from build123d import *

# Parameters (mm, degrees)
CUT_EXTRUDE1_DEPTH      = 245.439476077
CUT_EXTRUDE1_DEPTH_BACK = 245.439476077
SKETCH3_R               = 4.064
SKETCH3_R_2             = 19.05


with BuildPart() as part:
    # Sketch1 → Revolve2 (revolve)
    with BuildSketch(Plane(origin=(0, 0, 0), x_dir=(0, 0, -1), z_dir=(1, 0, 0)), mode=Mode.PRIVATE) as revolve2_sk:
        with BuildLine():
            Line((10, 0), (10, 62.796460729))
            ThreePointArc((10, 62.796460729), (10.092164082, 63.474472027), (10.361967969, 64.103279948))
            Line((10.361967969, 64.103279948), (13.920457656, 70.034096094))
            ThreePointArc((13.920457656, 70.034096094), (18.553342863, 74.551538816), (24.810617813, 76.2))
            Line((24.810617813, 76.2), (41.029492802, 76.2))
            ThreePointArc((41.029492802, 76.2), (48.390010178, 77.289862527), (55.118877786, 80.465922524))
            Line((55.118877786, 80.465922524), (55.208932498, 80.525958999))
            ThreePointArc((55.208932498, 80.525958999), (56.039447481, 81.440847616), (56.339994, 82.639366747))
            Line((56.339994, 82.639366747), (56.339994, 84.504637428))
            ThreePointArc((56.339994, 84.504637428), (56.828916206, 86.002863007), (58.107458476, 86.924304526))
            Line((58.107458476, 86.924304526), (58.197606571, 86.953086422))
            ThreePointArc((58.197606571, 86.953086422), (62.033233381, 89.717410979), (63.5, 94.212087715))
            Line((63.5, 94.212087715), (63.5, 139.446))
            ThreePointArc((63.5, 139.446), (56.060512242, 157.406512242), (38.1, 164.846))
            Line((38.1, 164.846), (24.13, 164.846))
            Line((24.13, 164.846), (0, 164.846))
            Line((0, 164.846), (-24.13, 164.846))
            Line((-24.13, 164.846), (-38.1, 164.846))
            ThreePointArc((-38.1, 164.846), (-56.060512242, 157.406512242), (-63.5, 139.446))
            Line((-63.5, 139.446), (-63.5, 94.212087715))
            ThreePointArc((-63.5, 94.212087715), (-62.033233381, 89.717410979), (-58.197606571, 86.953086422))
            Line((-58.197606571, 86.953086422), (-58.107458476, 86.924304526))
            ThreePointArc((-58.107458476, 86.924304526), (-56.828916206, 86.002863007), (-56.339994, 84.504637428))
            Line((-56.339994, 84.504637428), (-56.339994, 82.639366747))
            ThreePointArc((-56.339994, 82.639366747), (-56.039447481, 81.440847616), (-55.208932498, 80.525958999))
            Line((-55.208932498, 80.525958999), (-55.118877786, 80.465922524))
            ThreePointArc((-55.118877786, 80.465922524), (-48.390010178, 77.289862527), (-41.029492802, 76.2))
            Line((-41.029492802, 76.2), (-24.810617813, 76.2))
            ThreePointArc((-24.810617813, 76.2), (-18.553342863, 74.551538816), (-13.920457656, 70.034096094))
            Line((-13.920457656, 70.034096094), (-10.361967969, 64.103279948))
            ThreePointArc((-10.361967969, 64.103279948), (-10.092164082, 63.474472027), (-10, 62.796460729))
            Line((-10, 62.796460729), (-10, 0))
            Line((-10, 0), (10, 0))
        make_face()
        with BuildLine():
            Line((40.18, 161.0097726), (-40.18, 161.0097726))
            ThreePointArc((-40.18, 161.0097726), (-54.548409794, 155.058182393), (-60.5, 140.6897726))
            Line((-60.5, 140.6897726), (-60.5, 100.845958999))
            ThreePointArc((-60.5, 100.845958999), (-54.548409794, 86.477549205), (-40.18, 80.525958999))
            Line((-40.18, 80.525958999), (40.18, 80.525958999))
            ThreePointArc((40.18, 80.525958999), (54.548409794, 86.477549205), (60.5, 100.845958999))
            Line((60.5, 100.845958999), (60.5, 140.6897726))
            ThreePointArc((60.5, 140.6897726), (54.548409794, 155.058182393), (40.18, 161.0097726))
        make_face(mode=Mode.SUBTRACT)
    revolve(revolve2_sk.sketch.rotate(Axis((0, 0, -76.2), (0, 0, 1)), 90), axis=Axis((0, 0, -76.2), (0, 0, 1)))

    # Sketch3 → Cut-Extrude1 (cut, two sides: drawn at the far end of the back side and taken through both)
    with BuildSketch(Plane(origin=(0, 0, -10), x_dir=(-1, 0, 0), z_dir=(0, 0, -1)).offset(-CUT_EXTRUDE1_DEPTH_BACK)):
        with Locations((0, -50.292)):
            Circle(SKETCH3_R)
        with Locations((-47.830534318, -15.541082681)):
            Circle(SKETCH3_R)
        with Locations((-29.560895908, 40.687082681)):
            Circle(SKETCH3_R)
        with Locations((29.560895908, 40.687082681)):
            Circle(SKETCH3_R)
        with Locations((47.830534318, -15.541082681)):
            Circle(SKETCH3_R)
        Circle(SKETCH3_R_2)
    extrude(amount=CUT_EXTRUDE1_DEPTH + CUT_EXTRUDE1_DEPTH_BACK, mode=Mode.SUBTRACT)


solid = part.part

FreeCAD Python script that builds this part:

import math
import FreeCAD as App
import Part
import Sketcher

V = App.Vector
Q = App.Units.Quantity

doc = App.newDocument("Part")
params = doc.addObject("Spreadsheet::Sheet", "Params")
for row, (alias, value) in enumerate([
    ("sketch1_radius", "1 in"),
    ("sketch1_radius2", "0.1 in"),
    ("sketch1_radius3", "0.5 in"),
    ("sketch1_radius4", "0.3 in"),
    ("sketch1_radius5", "0.8 in"),
    ("revolution_angle", "360 deg"),
    ("sketch2_diameter", "1.5 in"),
    ("sketch2_diameter2", "0.32 in"),
], start=1):
    params.set(f"A{row}", alias)
    params.set(f"B{row}", "=" + value)
    params.setAlias(f"B{row}", alias)

body = doc.addObject("PartDesign::Body", "Body")

sketch1 = body.newObject("Sketcher::SketchObject", "Sketch")
sketch1.AttachmentSupport = (doc.getObject("YZ_Plane"), [""])
sketch1.MapMode = "FlatFace"
sketch1.addGeometry(Part.LineSegment(V(0, -10, 0), V(62.8, -10, 0)), False)
sketch1.addGeometry(Part.ArcOfCircle(Part.Circle(V(62.8, -12.54, 0), V(0, 0, 1), 2.54), math.radians(59), math.radians(90)), False)
sketch1.addGeometry(Part.LineSegment(V(64.1, -10.36, 0), V(70.03, -13.92, 0)), False)
sketch1.addGeometry(Part.ArcOfCircle(Part.Circle(V(63.5, -24.81, 0), V(0, 0, 1), 12.7), math.radians(0), math.radians(59)), False)
sketch1.addGeometry(Part.LineSegment(V(76.2, -24.81, 0), V(76.2, -41.03, 0)), False)
sketch1.addGeometry(Part.ArcOfCircle(Part.Circle(V(101.6, -41.03, 0), V(0, 0, 1), 25.4), math.radians(180), math.radians(214)), False)
sketch1.addGeometry(Part.LineSegment(V(80.47, -55.12, 0), V(80.53, -55.21, 0)), False)
sketch1.addGeometry(Part.ArcOfCircle(Part.Circle(V(82.64, -53.8, 0), V(0, 0, 1), 2.54), math.radians(-146), math.radians(-90)), False)
sketch1.addGeometry(Part.LineSegment(V(82.64, -56.34, 0), V(84.5, -56.34, 0)), False)
sketch1.addGeometry(Part.ArcOfCircle(Part.Circle(V(84.5, -58.88, 0), V(0, 0, 1), 2.54), math.radians(18), math.radians(90)), False)
sketch1.addGeometry(Part.LineSegment(V(86.92, -58.11, 0), V(86.95, -58.2, 0)), False)
sketch1.addGeometry(Part.ArcOfCircle(Part.Circle(V(94.21, -55.88, 0), V(0, 0, 1), 7.62), math.radians(-162), math.radians(-90)), False)
sketch1.addGeometry(Part.LineSegment(V(94.21, -63.5, 0), V(139.45, -63.5, 0)), False)
sketch1.addGeometry(Part.ArcOfCircle(Part.Circle(V(139.45, -38.1, 0), V(0, 0, 1), 25.4), math.radians(-90), math.radians(0)), False)
sketch1.addGeometry(Part.LineSegment(V(164.85, -38.1, 0), V(164.85, 38.1, 0)), False)
sketch1.addGeometry(Part.ArcOfCircle(Part.Circle(V(139.45, 38.1, 0), V(0, 0, 1), 25.4), math.radians(0), math.radians(90)), False)
sketch1.addGeometry(Part.LineSegment(V(139.45, 63.5, 0), V(94.21, 63.5, 0)), False)
sketch1.addGeometry(Part.ArcOfCircle(Part.Circle(V(94.21, 55.88, 0), V(0, 0, 1), 7.62), math.radians(90), math.radians(162)), False)
sketch1.addGeometry(Part.LineSegment(V(86.95, 58.2, 0), V(86.92, 58.11, 0)), False)
sketch1.addGeometry(Part.ArcOfCircle(Part.Circle(V(84.5, 58.88, 0), V(0, 0, 1), 2.54), math.radians(-90), math.radians(-18)), False)
sketch1.addGeometry(Part.LineSegment(V(84.5, 56.34, 0), V(82.64, 56.34, 0)), False)
sketch1.addGeometry(Part.ArcOfCircle(Part.Circle(V(82.64, 53.8, 0), V(0, 0, 1), 2.54), math.radians(90), math.radians(146)), False)
sketch1.addGeometry(Part.LineSegment(V(80.53, 55.21, 0), V(80.47, 55.12, 0)), False)
sketch1.addGeometry(Part.ArcOfCircle(Part.Circle(V(101.6, 41.03, 0), V(0, 0, 1), 25.4), math.radians(146), math.radians(180)), False)
sketch1.addGeometry(Part.LineSegment(V(76.2, 41.03, 0), V(76.2, 24.81, 0)), False)
sketch1.addGeometry(Part.ArcOfCircle(Part.Circle(V(63.5, 24.81, 0), V(0, 0, 1), 12.7), math.radians(-59), math.radians(0)), False)
sketch1.addGeometry(Part.LineSegment(V(70.03, 13.92, 0), V(64.1, 10.36, 0)), False)
sketch1.addGeometry(Part.ArcOfCircle(Part.Circle(V(62.8, 12.54, 0), V(0, 0, 1), 2.54), math.radians(-90), math.radians(-59)), False)
sketch1.addGeometry(Part.LineSegment(V(62.8, 10, 0), V(0, 10, 0)), False)
sketch1.addGeometry(Part.LineSegment(V(0, 10, 0), V(0, -10, 0)), False)
sketch1.addGeometry(Part.LineSegment(V(161.01, 40.18, 0), V(161.01, -40.18, 0)), False)
sketch1.addGeometry(Part.ArcOfCircle(Part.Circle(V(140.69, -40.18, 0), V(0, 0, 1), 20.32), math.radians(-90), math.radians(0)), False)
sketch1.addGeometry(Part.LineSegment(V(140.69, -60.5, 0), V(100.85, -60.5, 0)), False)
sketch1.addGeometry(Part.ArcOfCircle(Part.Circle(V(100.85, -40.18, 0), V(0, 0, 1), 20.32), math.radians(180), math.radians(270)), False)
sketch1.addGeometry(Part.LineSegment(V(80.53, -40.18, 0), V(80.53, 40.18, 0)), False)
sketch1.addGeometry(Part.ArcOfCircle(Part.Circle(V(100.85, 40.18, 0), V(0, 0, 1), 20.32), math.radians(90), math.radians(180)), False)
sketch1.addGeometry(Part.LineSegment(V(100.85, 60.5, 0), V(140.69, 60.5, 0)), False)
sketch1.addGeometry(Part.ArcOfCircle(Part.Circle(V(140.69, 40.18, 0), V(0, 0, 1), 20.32), math.radians(0), math.radians(90)), False)
sketch1.addConstraint(Sketcher.Constraint("Tangent", 0, 2, 1, 2))
sketch1.addConstraint(Sketcher.Constraint("Tangent", 1, 1, 2, 1))
sketch1.addConstraint(Sketcher.Constraint("Tangent", 2, 2, 3, 2))
sketch1.addConstraint(Sketcher.Constraint("Tangent", 3, 1, 4, 1))
sketch1.addConstraint(Sketcher.Constraint("Tangent", 4, 2, 5, 1))
sketch1.addConstraint(Sketcher.Constraint("Tangent", 5, 2, 6, 1))
sketch1.addConstraint(Sketcher.Constraint("Tangent", 6, 2, 7, 1))
sketch1.addConstraint(Sketcher.Constraint("Tangent", 7, 2, 8, 1))
sketch1.addConstraint(Sketcher.Constraint("Tangent", 8, 2, 9, 2))
sketch1.addConstraint(Sketcher.Constraint("Tangent", 9, 1, 10, 1))
sketch1.addConstraint(Sketcher.Constraint("Tangent", 10, 2, 11, 1))
sketch1.addConstraint(Sketcher.Constraint("Tangent", 11, 2, 12, 1))
sketch1.addConstraint(Sketcher.Constraint("Tangent", 12, 2, 13, 1))
sketch1.addConstraint(Sketcher.Constraint("Tangent", 13, 2, 14, 1))
sketch1.addConstraint(Sketcher.Constraint("Tangent", 14, 2, 15, 1))
sketch1.addConstraint(Sketcher.Constraint("Tangent", 15, 2, 16, 1))
sketch1.addConstraint(Sketcher.Constraint("Tangent", 16, 2, 17, 1))
sketch1.addConstraint(Sketcher.Constraint("Tangent", 17, 2, 18, 1))
sketch1.addConstraint(Sketcher.Constraint("Tangent", 18, 2, 19, 2))
sketch1.addConstraint(Sketcher.Constraint("Tangent", 19, 1, 20, 1))
sketch1.addConstraint(Sketcher.Constraint("Tangent", 20, 2, 21, 1))
sketch1.addConstraint(Sketcher.Constraint("Tangent", 21, 2, 22, 1))
sketch1.addConstraint(Sketcher.Constraint("Tangent", 22, 2, 23, 1))
sketch1.addConstraint(Sketcher.Constraint("Tangent", 23, 2, 24, 1))
sketch1.addConstraint(Sketcher.Constraint("Tangent", 24, 2, 25, 2))
sketch1.addConstraint(Sketcher.Constraint("Tangent", 25, 1, 26, 1))
sketch1.addConstraint(Sketcher.Constraint("Tangent", 26, 2, 27, 2))
sketch1.addConstraint(Sketcher.Constraint("Tangent", 27, 1, 28, 1))
sketch1.addConstraint(Sketcher.Constraint("Coincident", 28, 2, 29, 1))
sketch1.addConstraint(Sketcher.Constraint("Coincident", 29, 2, 0, 1))
sketch1.addConstraint(Sketcher.Constraint("Tangent", 30, 2, 31, 2))
sketch1.addConstraint(Sketcher.Constraint("Tangent", 31, 1, 32, 1))
sketch1.addConstraint(Sketcher.Constraint("Tangent", 32, 2, 33, 2))
sketch1.addConstraint(Sketcher.Constraint("Tangent", 33, 1, 34, 1))
sketch1.addConstraint(Sketcher.Constraint("Tangent", 34, 2, 35, 2))
sketch1.addConstraint(Sketcher.Constraint("Tangent", 35, 1, 36, 1))
sketch1.addConstraint(Sketcher.Constraint("Tangent", 36, 2, 37, 2))
sketch1.addConstraint(Sketcher.Constraint("Tangent", 37, 1, 30, 1))
sketch1.addConstraint(Sketcher.Constraint("Horizontal", 0))
sketch1.addConstraint(Sketcher.Constraint("Vertical", 4))
sketch1.addConstraint(Sketcher.Constraint("Horizontal", 8))
sketch1.addConstraint(Sketcher.Constraint("Horizontal", 12))
sketch1.addConstraint(Sketcher.Constraint("Vertical", 14))
sketch1.addConstraint(Sketcher.Constraint("Horizontal", 16))
sketch1.addConstraint(Sketcher.Constraint("Horizontal", 20))
sketch1.addConstraint(Sketcher.Constraint("Vertical", 24))
sketch1.addConstraint(Sketcher.Constraint("Horizontal", 28))
sketch1.addConstraint(Sketcher.Constraint("Vertical", 29))
sketch1.addConstraint(Sketcher.Constraint("Vertical", 30))
sketch1.addConstraint(Sketcher.Constraint("Horizontal", 32))
sketch1.addConstraint(Sketcher.Constraint("Vertical", 34))
sketch1.addConstraint(Sketcher.Constraint("Horizontal", 36))
sketch1.addConstraint(Sketcher.Constraint("Equal", 1, 7))
sketch1.addConstraint(Sketcher.Constraint("Equal", 7, 9))
sketch1.addConstraint(Sketcher.Constraint("Equal", 5, 13))
sketch1.addConstraint(Sketcher.Constraint("Equal", 13, 15))
sketch1.addConstraint(Sketcher.Constraint("Equal", 11, 17))
sketch1.addConstraint(Sketcher.Constraint("Equal", 9, 19))
sketch1.addConstraint(Sketcher.Constraint("Equal", 19, 21))
sketch1.addConstraint(Sketcher.Constraint("Equal", 15, 23))
sketch1.addConstraint(Sketcher.Constraint("Equal", 3, 25))
sketch1.addConstraint(Sketcher.Constraint("Equal", 21, 27))
sketch1.addConstraint(Sketcher.Constraint("Equal", 31, 33))
sketch1.addConstraint(Sketcher.Constraint("Equal", 33, 35))
sketch1.addConstraint(Sketcher.Constraint("Equal", 35, 37))
sketch1.addConstraint(Sketcher.Constraint("Symmetric", 28, 2, 29, 2, -1, 1))
sketch1.addConstraint(Sketcher.Constraint("Symmetric", 11, 3, 17, 3, -1))
sketch1.addConstraint(Sketcher.Constraint("Symmetric", 9, 3, 19, 3, -1))
sketch1.addConstraint(Sketcher.Constraint("Symmetric", 5, 3, 23, 3, -1))
sketch1.addConstraint(Sketcher.Constraint("Symmetric", 2, 2, 25, 1, -1))
sketch1.addConstraint(Sketcher.Constraint("Vertical", 7, 3, 21, 3))
sketch1.addConstraint(Sketcher.Constraint("Vertical", 21, 2, 33, 1))
sketch1.addConstraint(Sketcher.Constraint("Radius", 5, Q("1 in")))
sketch1.addConstraint(Sketcher.Constraint("Radius", 1, Q("0.1 in")))
sketch1.addConstraint(Sketcher.Constraint("Radius", 3, Q("0.5 in")))
sketch1.addConstraint(Sketcher.Constraint("Radius", 11, Q("0.3 in")))
sketch1.addConstraint(Sketcher.Constraint("Radius", 31, Q("0.8 in")))
sketch1.addConstraint(Sketcher.Constraint("DistanceY", 14, 1, 14, 2, Q("3 in")))
sketch1.addConstraint(Sketcher.Constraint("DistanceX", -1, 1, 5, 3, Q("4 in")))
sketch1.addConstraint(Sketcher.Constraint("DistanceX", -1, 1, 13, 3, Q("5.49 in")))
sketch1.addConstraint(Sketcher.Constraint("DistanceY", 29, 2, 29, 1, Q("20 mm")))
sketch1.addConstraint(Sketcher.Constraint("DistanceY", 30, 2, 30, 1, Q("80.36 mm")))
sketch1.addConstraint(Sketcher.Constraint("DistanceY", 5, 2, 4, 2, Q("0.5547002 in")))
sketch1.addConstraint(Sketcher.Constraint("DistanceX", 0, 1, 0, 2, Q("62.796461 mm")))
sketch1.addConstraint(Sketcher.Constraint("DistanceX", 8, 1, 8, 2, Q("1.865271 mm")))
sketch1.addConstraint(Sketcher.Constraint("DistanceY", 31, 3, -1, 1, Q("40.18 mm")))
sketch1.addConstraint(Sketcher.Constraint("DistanceY", 7, 3, 5, 3, Q("12.770501 mm")))
sketch1.addConstraint(Sketcher.Constraint("DistanceX", 10, 2, 11, 2, Q("7.259001 mm")))
sketch1.addConstraint(Sketcher.Constraint("Distance", 2, Q("6.916461 mm")))
sketch1.addConstraint(Sketcher.Constraint("Distance", 10, Q("0.094631 mm")))
sketch1.addConstraint(Sketcher.Constraint("DistanceX", 32, 2, 32, 1, Q("39.843814 mm")))
sketch1.setExpression("Constraints[72]", "Params.sketch1_radius")
sketch1.setExpression("Constraints[73]", "Params.sketch1_radius2")
sketch1.setExpression("Constraints[74]", "Params.sketch1_radius3")
sketch1.setExpression("Constraints[75]", "Params.sketch1_radius4")
sketch1.setExpression("Constraints[76]", "Params.sketch1_radius5")
revolution = body.newObject("PartDesign::Revolution", "Revolution")
revolution.Profile = sketch1
revolution.ReferenceAxis = (sketch1, ["V_Axis"])
revolution.setExpression("Angle", "Params.revolution_angle")

sketch2 = body.newObject("Sketcher::SketchObject", "Sketch001")
sketch2.AttachmentSupport = (doc.getObject("XY_Plane"), [""])
sketch2.MapMode = "FlatFace"
sketch2.AttachmentOffset = App.Placement(V(0, 0, -10), App.Rotation())
sketch2.addGeometry(Part.Circle(V(0, -50.3, 0), V(0, 0, 1), 4.1), False)
sketch2.addGeometry(Part.Circle(V(47.8, -15.5, 0), V(0, 0, 1), 4.1), False)
sketch2.addGeometry(Part.Circle(V(29.6, 40.7, 0), V(0, 0, 1), 4.1), False)
sketch2.addGeometry(Part.Circle(V(-29.6, 40.7, 0), V(0, 0, 1), 4.1), False)
sketch2.addGeometry(Part.Circle(V(-47.8, -15.5, 0), V(0, 0, 1), 4.1), False)
sketch2.addGeometry(Part.Circle(V(0, 0, 0), V(0, 0, 1), 19.1), False)
sketch2.addConstraint(Sketcher.Constraint("Coincident", 5, 3, -1, 1))
sketch2.addConstraint(Sketcher.Constraint("Equal", 0, 1))
sketch2.addConstraint(Sketcher.Constraint("Equal", 1, 2))
sketch2.addConstraint(Sketcher.Constraint("Equal", 2, 3))
sketch2.addConstraint(Sketcher.Constraint("Equal", 3, 4))
sketch2.addConstraint(Sketcher.Constraint("Symmetric", 2, 3, 3, 3, -2))
sketch2.addConstraint(Sketcher.Constraint("Symmetric", 1, 3, 4, 3, -2))
sketch2.addConstraint(Sketcher.Constraint("PointOnObject", 0, 3, -2))
sketch2.addConstraint(Sketcher.Constraint("Diameter", 5, Q("1.5 in")))
sketch2.addConstraint(Sketcher.Constraint("Diameter", 0, Q("0.32 in")))
sketch2.addConstraint(Sketcher.Constraint("DistanceY", 0, 3, -1, 1, Q("1.98 in")))
sketch2.addConstraint(Sketcher.Constraint("DistanceX", 2, 3, 1, 3, Q("18.269638 mm")))
sketch2.addConstraint(Sketcher.Constraint("DistanceX", 3, 3, 2, 3, Q("59.121792 mm")))
sketch2.addConstraint(Sketcher.Constraint("DistanceY", 1, 3, -1, 1, Q("15.541083 mm")))
sketch2.addConstraint(Sketcher.Constraint("DistanceY", -1, 1, 2, 3, Q("40.687083 mm")))
sketch2.setExpression("Constraints[8]", "Params.sketch2_diameter")
sketch2.setExpression("Constraints[9]", "Params.sketch2_diameter2")
pocket1 = body.newObject("PartDesign::Pocket", "Pocket")
pocket1.Profile = sketch2
pocket1.Type = "ThroughAll"
pocket1.Midplane = True

doc.recompute()
